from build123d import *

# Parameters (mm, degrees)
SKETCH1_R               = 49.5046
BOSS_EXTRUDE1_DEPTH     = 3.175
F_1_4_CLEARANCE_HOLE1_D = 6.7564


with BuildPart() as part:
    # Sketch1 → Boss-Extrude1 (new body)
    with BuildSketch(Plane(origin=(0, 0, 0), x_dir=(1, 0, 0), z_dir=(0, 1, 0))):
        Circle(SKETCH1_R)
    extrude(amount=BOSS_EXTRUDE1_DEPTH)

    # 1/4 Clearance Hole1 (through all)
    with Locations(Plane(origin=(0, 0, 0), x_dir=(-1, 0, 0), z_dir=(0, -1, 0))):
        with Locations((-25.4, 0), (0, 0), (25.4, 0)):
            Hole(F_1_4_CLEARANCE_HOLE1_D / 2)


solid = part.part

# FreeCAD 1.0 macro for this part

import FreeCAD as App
import Part
import Sketcher
from FreeCAD import Vector
Q = App.Units.Quantity

doc = App.newDocument("Part")
body = doc.addObject("PartDesign::Body", "Body")

sketch1 = body.newObject("Sketcher::SketchObject", "Sketch")
sketch1.AttachmentSupport = (doc.getObject("XZ_Plane"), [""])
sketch1.MapMode = "FlatFace"
sketch1.addGeometry(Part.Circle(Vector(0, 0, 0), Vector(0, 0, 1), 49.5046), False)
sketch1.addConstraint([
    Sketcher.Constraint("Coincident", 0, 3, -1, 1),
    Sketcher.Constraint("Diameter", 0, Q("3.898 in")),
])
pad1 = body.newObject("PartDesign::Pad", "Pad")
pad1.Profile = sketch1
pad1.Length = Q("0.125 in")
pad1.Reversed = True

sketch2 = body.newObject("Sketcher::SketchObject", "Sketch001")
sketch2.AttachmentSupport = (doc.getObject("XZ_Plane"), [""])
sketch2.MapMode = "FlatFace"
sketch2.addGeometry([
    Part.Circle(Vector(25.4, 0, 0), Vector(0, 0, 1), 3.3782),
    Part.Circle(Vector(0, 0, 0), Vector(0, 0, 1), 3.3782),
    Part.Circle(Vector(-25.4, 0, 0), Vector(0, 0, 1), 3.3782),
], False)
sketch2.addConstraint([
    Sketcher.Constraint("Coincident", 1, 3, -1, 1),
    Sketcher.Constraint("Equal", 0, 1),
    Sketcher.Constraint("Equal", 1, 2),
    Sketcher.Constraint("Symmetric", 0, 3, 2, 3, -1, 1),
    Sketcher.Constraint("PointOnObject", 0, 3, -1),
    Sketcher.Constraint("Diameter", 0, Q("0.266 in")),
    Sketcher.Constraint("DistanceX", -1, 1, 0, 3, Q("1 in")),
])
doc.recompute()
hole = body.newObject("PartDesign::Hole", "Hole")
hole.Profile = sketch2
hole.ThreadType = "None"
hole.Diameter = Q("0.266 in")
hole.DepthType = "ThroughAll"

doc.recompute()
